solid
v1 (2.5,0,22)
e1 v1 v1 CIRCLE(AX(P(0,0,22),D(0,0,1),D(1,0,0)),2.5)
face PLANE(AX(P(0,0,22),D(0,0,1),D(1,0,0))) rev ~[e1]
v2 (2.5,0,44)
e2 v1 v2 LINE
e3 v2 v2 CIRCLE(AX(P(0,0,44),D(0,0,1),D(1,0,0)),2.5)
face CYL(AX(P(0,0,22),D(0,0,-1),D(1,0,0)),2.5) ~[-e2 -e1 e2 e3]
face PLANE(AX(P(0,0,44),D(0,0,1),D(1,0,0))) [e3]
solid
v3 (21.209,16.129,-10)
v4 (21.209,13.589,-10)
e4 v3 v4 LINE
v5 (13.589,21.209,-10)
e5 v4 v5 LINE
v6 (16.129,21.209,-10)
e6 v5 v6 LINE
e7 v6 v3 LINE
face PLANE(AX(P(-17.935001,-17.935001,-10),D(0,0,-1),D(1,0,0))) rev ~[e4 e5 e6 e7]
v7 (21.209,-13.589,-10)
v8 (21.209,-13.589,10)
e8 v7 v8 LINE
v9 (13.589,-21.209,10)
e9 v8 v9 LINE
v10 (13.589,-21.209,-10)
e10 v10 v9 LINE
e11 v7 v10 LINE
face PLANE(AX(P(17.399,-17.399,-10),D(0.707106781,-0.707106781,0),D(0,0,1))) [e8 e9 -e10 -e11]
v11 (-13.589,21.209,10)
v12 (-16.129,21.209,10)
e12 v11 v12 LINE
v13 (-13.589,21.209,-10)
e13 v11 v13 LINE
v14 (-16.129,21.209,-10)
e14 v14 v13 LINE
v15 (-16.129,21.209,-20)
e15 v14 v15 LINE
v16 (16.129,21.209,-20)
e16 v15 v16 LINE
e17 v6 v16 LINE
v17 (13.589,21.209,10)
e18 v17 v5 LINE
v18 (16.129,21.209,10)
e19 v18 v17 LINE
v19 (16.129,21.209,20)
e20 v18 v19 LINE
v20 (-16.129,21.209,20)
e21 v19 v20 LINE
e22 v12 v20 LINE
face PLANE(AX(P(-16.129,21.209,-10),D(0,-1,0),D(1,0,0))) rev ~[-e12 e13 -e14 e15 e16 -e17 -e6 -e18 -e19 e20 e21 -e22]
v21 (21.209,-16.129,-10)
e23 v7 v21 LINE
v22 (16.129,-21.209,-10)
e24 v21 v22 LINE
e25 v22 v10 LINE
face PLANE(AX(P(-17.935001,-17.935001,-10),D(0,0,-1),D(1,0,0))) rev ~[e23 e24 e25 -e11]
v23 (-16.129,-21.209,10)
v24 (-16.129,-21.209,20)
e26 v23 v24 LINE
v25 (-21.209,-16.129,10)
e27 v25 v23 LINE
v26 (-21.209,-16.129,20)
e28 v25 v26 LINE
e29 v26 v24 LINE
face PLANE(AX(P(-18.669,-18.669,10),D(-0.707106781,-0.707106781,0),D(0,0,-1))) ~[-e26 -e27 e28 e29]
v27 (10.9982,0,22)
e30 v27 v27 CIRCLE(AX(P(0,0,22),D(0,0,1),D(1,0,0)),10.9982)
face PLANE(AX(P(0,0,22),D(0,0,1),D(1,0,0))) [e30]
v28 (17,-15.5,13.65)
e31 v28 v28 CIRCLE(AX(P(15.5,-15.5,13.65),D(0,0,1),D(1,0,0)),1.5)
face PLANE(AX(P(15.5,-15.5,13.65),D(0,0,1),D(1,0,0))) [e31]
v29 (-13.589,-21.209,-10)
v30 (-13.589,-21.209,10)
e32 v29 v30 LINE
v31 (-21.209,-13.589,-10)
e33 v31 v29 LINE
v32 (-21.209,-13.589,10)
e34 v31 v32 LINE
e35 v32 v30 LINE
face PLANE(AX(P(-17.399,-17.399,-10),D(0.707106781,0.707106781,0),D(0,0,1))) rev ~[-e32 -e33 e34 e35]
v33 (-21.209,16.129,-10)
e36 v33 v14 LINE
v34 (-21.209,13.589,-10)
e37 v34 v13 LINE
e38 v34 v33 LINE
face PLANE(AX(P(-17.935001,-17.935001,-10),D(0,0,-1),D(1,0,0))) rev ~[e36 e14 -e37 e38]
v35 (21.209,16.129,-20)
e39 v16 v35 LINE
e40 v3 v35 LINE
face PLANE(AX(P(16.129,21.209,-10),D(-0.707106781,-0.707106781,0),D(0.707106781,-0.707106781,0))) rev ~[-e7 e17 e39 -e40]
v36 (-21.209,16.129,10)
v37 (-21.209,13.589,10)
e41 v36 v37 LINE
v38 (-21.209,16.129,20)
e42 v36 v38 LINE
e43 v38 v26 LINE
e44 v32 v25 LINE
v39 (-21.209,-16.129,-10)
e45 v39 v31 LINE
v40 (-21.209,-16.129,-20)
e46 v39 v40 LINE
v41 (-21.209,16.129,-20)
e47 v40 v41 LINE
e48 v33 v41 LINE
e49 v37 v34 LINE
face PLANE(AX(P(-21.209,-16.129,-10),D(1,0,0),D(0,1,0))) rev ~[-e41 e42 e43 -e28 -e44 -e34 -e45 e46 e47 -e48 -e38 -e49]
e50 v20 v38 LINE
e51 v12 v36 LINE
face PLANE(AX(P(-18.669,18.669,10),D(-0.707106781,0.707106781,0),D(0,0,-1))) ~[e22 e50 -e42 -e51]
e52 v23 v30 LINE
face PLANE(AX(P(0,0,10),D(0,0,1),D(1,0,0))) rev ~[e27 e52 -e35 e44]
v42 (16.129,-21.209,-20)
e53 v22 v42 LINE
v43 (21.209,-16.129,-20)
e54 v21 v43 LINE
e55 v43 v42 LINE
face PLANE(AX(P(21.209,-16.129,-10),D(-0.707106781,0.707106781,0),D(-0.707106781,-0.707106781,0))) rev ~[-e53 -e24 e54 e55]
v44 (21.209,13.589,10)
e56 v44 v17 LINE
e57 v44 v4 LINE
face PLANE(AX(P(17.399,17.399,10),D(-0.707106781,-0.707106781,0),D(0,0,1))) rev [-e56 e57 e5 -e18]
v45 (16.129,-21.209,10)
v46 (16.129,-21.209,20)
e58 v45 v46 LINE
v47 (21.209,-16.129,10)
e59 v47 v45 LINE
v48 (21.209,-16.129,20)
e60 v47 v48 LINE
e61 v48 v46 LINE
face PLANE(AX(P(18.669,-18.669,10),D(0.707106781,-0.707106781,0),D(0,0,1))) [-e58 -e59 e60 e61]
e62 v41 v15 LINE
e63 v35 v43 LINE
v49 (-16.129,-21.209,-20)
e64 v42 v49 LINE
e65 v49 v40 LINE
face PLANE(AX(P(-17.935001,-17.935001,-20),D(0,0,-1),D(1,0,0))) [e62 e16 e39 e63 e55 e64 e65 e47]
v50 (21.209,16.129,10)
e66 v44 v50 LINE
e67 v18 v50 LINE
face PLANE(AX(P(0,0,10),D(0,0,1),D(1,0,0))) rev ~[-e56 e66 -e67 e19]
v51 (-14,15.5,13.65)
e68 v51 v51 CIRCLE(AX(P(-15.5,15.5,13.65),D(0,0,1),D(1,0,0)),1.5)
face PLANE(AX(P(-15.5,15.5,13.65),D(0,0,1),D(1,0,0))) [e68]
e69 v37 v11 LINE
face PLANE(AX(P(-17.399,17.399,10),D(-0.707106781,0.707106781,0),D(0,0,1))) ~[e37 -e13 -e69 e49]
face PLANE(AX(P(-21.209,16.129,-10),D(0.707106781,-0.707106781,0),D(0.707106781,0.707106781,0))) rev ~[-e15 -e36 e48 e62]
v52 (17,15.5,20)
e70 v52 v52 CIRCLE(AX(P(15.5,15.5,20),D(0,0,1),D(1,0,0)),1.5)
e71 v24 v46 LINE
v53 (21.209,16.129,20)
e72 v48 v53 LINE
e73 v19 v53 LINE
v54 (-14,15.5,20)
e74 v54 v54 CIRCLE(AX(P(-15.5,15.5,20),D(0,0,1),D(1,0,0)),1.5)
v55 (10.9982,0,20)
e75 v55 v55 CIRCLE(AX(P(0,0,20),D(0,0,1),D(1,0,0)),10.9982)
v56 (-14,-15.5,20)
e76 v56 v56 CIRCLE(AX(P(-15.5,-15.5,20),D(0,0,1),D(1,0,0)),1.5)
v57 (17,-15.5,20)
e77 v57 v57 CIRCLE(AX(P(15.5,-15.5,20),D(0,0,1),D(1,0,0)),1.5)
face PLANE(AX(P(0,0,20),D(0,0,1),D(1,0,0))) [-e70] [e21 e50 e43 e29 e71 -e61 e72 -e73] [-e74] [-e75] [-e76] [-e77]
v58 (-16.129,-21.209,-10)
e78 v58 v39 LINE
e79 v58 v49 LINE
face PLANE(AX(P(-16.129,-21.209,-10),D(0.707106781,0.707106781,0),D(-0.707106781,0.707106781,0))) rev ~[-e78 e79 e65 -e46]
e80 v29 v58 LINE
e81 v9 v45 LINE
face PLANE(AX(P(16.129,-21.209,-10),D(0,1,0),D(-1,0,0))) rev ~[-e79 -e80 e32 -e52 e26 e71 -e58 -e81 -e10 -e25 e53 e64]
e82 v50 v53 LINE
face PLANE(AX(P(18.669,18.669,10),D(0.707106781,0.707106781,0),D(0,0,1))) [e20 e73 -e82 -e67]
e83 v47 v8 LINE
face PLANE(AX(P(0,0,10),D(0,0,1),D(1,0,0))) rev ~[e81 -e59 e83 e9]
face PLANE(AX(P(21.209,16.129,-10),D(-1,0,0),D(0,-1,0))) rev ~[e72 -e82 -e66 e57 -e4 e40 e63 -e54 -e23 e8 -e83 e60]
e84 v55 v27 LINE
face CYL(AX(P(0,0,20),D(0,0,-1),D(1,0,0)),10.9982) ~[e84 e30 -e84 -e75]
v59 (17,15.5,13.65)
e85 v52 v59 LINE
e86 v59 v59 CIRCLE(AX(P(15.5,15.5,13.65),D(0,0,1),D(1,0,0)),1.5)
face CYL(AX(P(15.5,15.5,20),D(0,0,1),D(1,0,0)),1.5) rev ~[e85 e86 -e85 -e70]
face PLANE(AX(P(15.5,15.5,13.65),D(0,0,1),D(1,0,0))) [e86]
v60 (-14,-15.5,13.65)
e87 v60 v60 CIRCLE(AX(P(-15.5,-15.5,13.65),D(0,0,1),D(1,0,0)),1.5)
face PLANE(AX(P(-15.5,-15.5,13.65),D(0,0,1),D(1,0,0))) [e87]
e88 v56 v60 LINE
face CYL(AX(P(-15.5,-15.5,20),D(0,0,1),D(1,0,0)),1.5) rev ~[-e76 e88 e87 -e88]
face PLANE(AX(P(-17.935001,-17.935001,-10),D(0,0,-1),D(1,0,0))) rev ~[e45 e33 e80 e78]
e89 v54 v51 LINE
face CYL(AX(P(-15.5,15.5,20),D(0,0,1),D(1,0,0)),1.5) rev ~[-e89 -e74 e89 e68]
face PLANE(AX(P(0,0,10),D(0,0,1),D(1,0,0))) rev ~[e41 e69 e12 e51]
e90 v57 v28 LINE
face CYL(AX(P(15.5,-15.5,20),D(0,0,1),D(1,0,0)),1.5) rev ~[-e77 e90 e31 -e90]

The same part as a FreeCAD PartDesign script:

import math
import FreeCAD as App
import Part
import Sketcher

V = App.Vector
Q = App.Units.Quantity


def edges_at(feature, points):
    """Names of the edges that pass closest to the given points."""
    edges = feature.Shape.Edges
    near = lambda p: min(range(len(edges)), key=lambda i: edges[i].distToShape(Part.Vertex(*p))[0])
    return sorted({f"Edge{near(p) + 1}" for p in points})


def add_polygon(sketch, points):
    """Adds a closed chain of lines whose ends are joined by coincident constraints."""
    first, n = sketch.GeometryCount, len(points)
    for a, b in zip(points, points[1:] + points[:1]):
        sketch.addGeometry(Part.LineSegment(App.Vector(*a, 0), App.Vector(*b, 0)), False)
    for i in range(n):
        sketch.addConstraint(Sketcher.Constraint("Coincident", first + i, 2, first + (i + 1) % n, 1))

doc = App.newDocument("Part")
params = doc.addObject("Spreadsheet::Sheet", "Params")
for row, (alias, value) in enumerate([
    ("pad1_length", "20 mm"),
    ("chamfer_size", "7.62 mm"),
    ("pad2_length", "10 mm"),
    ("chamfer2_size", "5.08 mm"),
    ("pad3_length", "10 mm"),
    ("pad4_length", "2 mm"),
    ("sketch5_radius", "2.5 mm"),
    ("pocket1_length", "15 mm"),
    ("sketch6_diameter", "3 mm"),
    ("pocket2_length", "6.35 mm"),
    ("sketch7_diameter", "5 mm"),
    ("pad5_length", "22 mm"),
], start=1):
    params.set(f"A{row}", alias)
    params.set(f"B{row}", "=" + value)
    params.setAlias(f"B{row}", alias)

body = doc.addObject("PartDesign::Body", "Body")

# Sketch on XY plane
sketch1 = doc.addObject("Sketcher::SketchObject", "Sketch")
body.addObject(sketch1)
sketch1.AttachmentSupport = (doc.XY_Plane, [""])
sketch1.MapMode = "FlatFace"
add_polygon(sketch1, [(-21, 21), (-21, -21), (21, -21), (21, 21)])  # lines 0-3
sketch1.addConstraint(Sketcher.Constraint("Vertical", 0))
sketch1.addConstraint(Sketcher.Constraint("Horizontal", 1))
sketch1.addConstraint(Sketcher.Constraint("Vertical", 2))
sketch1.addConstraint(Sketcher.Constraint("Horizontal", 3))
sketch1.addConstraint(Sketcher.Constraint("Symmetric", 0, 2, 2, 2, -1, 1))
sketch1.addConstraint(Sketcher.Constraint("Equal", 3, 0))
sketch1.addConstraint(Sketcher.Constraint("DistanceX", 1, 1, 1, 2, Q("42.418 mm")))
pad1 = doc.addObject("PartDesign::Pad", "Pad")
body.addObject(pad1)
pad1.Profile = sketch1
pad1.setExpression("Length", "Params.pad1_length")
pad1.Midplane = True
doc.recompute()

chamfer = doc.addObject("PartDesign::Chamfer", "Chamfer")
body.addObject(chamfer)
chamfer.Base = (pad1, edges_at(pad1, [
    (21.209, 21.209, 0),
    (-21.209, 21.209, 0),
    (-21.209, -21.209, 0),
    (21.209, -21.209, 0),
]))
chamfer.setExpression("Size", "Params.chamfer_size")

# Sketch on XY plane
sketch2 = doc.addObject("Sketcher::SketchObject", "Sketch001")
body.addObject(sketch2)
sketch2.AttachmentSupport = (doc.XY_Plane, [""])
sketch2.MapMode = "FlatFace"
sketch2.AttachmentOffset = App.Placement(V(0, 0, 10), App.Rotation())
add_polygon(sketch2, [(21, 21), (-21, 21), (-21, -21), (21, -21)])  # lines 0-3
sketch2.addConstraint(Sketcher.Constraint("Horizontal", 0))
sketch2.addConstraint(Sketcher.Constraint("Vertical", 1))
sketch2.addConstraint(Sketcher.Constraint("Horizontal", 2))
sketch2.addConstraint(Sketcher.Constraint("Vertical", 3))
sketch2.addConstraint(Sketcher.Constraint("Symmetric", 0, 2, 2, 2, -1, 1))
sketch2.addConstraint(Sketcher.Constraint("Equal", 2, 1))
sketch2.addConstraint(Sketcher.Constraint("DistanceX", 0, 2, 0, 1, Q("42.418 mm")))
pad2 = doc.addObject("PartDesign::Pad", "Pad001")
body.addObject(pad2)
pad2.Profile = sketch2
pad2.setExpression("Length", "Params.pad2_length")
doc.recompute()

chamfer2 = doc.addObject("PartDesign::Chamfer", "Chamfer001")
body.addObject(chamfer2)
chamfer2.Base = (pad2, edges_at(pad2, [
    (21.209, 21.209, 15),
    (-21.209, 21.209, 15),
    (-21.209, -21.209, 15),
    (21.209, -21.209, 15),
]))
chamfer2.setExpression("Size", "Params.chamfer2_size")

# Sketch on XY plane
sketch3 = doc.addObject("Sketcher::SketchObject", "Sketch002")
body.addObject(sketch3)
sketch3.AttachmentSupport = (doc.XY_Plane, [""])
sketch3.MapMode = "FlatFace"
sketch3.AttachmentOffset = App.Placement(V(0, 0, -10), App.Rotation())
add_polygon(sketch3, [(-16, -21), (-21, -16), (-21, 16), (-16, 21), (16, 21), (21, 16), (21, -16), (16, -21)])  # lines 0-7
sketch3.addConstraint(Sketcher.Constraint("Vertical", 1))
sketch3.addConstraint(Sketcher.Constraint("Horizontal", 3))
sketch3.addConstraint(Sketcher.Constraint("Vertical", 5))
sketch3.addConstraint(Sketcher.Constraint("Horizontal", 7))
sketch3.addConstraint(Sketcher.Constraint("Symmetric", 0, 2, 4, 2, -1, 1))
sketch3.addConstraint(Sketcher.Constraint("Symmetric", 2, 2, 6, 2, -1, 1))
sketch3.addConstraint(Sketcher.Constraint("Perpendicular", 0, 2))
sketch3.addConstraint(Sketcher.Constraint("Perpendicular", 2, 4))
sketch3.addConstraint(Sketcher.Constraint("Perpendicular", 4, 6))
sketch3.addConstraint(Sketcher.Constraint("Horizontal", 1, 2, 4, 2))
sketch3.addConstraint(Sketcher.Constraint("Vertical", 3, 2, 6, 2))
sketch3.addConstraint(Sketcher.Constraint("Equal", 7, 1))
sketch3.addConstraint(Sketcher.Constraint("DistanceX", 3, 1, 3, 2, Q("32.258 mm")))
sketch3.addConstraint(Sketcher.Constraint("DistanceX", 1, 2, 2, 2, Q("5.08 mm")))
pad3 = doc.addObject("PartDesign::Pad", "Pad002")
body.addObject(pad3)
pad3.Profile = sketch3
pad3.setExpression("Length", "Params.pad3_length")
pad3.Reversed = True

# Sketch on XY plane
sketch4 = doc.addObject("Sketcher::SketchObject", "Sketch003")
body.addObject(sketch4)
sketch4.AttachmentSupport = (doc.XY_Plane, [""])
sketch4.MapMode = "FlatFace"
sketch4.AttachmentOffset = App.Placement(V(0, 0, 20), App.Rotation())
sketch4.addGeometry(Part.Circle(V(0, 0, 0), V(0, 0, 1), 11), False)
sketch4.addConstraint(Sketcher.Constraint("Coincident", 0, 3, -1, 1))
sketch4.addConstraint(Sketcher.Constraint("Diameter", 0, Q("21.9964 mm")))
pad4 = doc.addObject("PartDesign::Pad", "Pad003")
body.addObject(pad4)
pad4.Profile = sketch4
pad4.setExpression("Length", "Params.pad4_length")

# Sketch on XY plane
sketch5 = doc.addObject("Sketcher::SketchObject", "Sketch004")
body.addObject(sketch5)
sketch5.AttachmentSupport = (doc.XY_Plane, [""])
sketch5.MapMode = "FlatFace"
sketch5.AttachmentOffset = App.Placement(V(0, 0, 44), App.Rotation())
sketch5.addGeometry(Part.LineSegment(V(2.6, 2.9, 0), V(-2.6, 2.9, 0)), False)
sketch5.addGeometry(Part.LineSegment(V(-2.6, 2.9, 0), V(-2.6, 2, 0)), False)
sketch5.addGeometry(Part.LineSegment(V(-2.6, 2, 0), V(-1.5, 2, 0)), False)
sketch5.addGeometry(Part.ArcOfCircle(Part.Circle(V(0, 0, 0), V(0, 0, 1), 2.5), math.radians(53), math.radians(127)), False)
sketch5.addGeometry(Part.LineSegment(V(1.5, 2, 0), V(2.6, 2, 0)), False)
sketch5.addGeometry(Part.LineSegment(V(2.6, 2, 0), V(2.6, 2.9, 0)), False)
sketch5.addConstraint(Sketcher.Constraint("Coincident", 0, 2, 1, 1))
sketch5.addConstraint(Sketcher.Constraint("Coincident", 1, 2, 2, 1))
sketch5.addConstraint(Sketcher.Constraint("Coincident", 2, 2, 3, 2))
sketch5.addConstraint(Sketcher.Constraint("Coincident", 3, 1, 4, 1))
sketch5.addConstraint(Sketcher.Constraint("Coincident", 4, 2, 5, 1))
sketch5.addConstraint(Sketcher.Constraint("Coincident", 5, 2, 0, 1))
sketch5.addConstraint(Sketcher.Constraint("Horizontal", 0))
sketch5.addConstraint(Sketcher.Constraint("Vertical", 1))
sketch5.addConstraint(Sketcher.Constraint("Horizontal", 2))
sketch5.addConstraint(Sketcher.Constraint("Horizontal", 4))
sketch5.addConstraint(Sketcher.Constraint("Vertical", 5))
sketch5.addConstraint(Sketcher.Constraint("Coincident", 3, 3, -1, 1))
sketch5.addConstraint(Sketcher.Constraint("Horizontal", 2, 2, 3, 1))
sketch5.addConstraint(Sketcher.Constraint("Radius", 3, Q("2.5 mm")))
sketch5.addConstraint(Sketcher.Constraint("DistanceY", -1, 1, 1, 2, Q("2 mm")))
sketch5.addConstraint(Sketcher.Constraint("DistanceX", 0, 2, 0, 1, Q("5.253729 mm")))
sketch5.addConstraint(Sketcher.Constraint("DistanceX", 2, 1, 2, 2, Q("1.133366 mm")))
sketch5.addConstraint(Sketcher.Constraint("DistanceY", 1, 2, 1, 1, Q("0.933404 mm")))
sketch5.setExpression("Constraints[13]", "Params.sketch5_radius")
pocket1 = doc.addObject("PartDesign::Pocket", "Pocket")
body.addObject(pocket1)
pocket1.Profile = sketch5
pocket1.setExpression("Length", "Params.pocket1_length")

# Sketch on XY plane
sketch6 = doc.addObject("Sketcher::SketchObject", "Sketch005")
body.addObject(sketch6)
sketch6.AttachmentSupport = (doc.XY_Plane, [""])
sketch6.MapMode = "FlatFace"
sketch6.AttachmentOffset = App.Placement(V(0, 0, 20), App.Rotation())
sketch6.addGeometry(Part.Circle(V(-15.5, 15.5, 0), V(0, 0, 1), 1.5), False)
sketch6.addGeometry(Part.Circle(V(15.5, 15.5, 0), V(0, 0, 1), 1.5), False)
sketch6.addGeometry(Part.Circle(V(15.5, -15.5, 0), V(0, 0, 1), 1.5), False)
sketch6.addGeometry(Part.Circle(V(-15.5, -15.5, 0), V(0, 0, 1), 1.5), False)
sketch6.addConstraint(Sketcher.Constraint("Equal", 0, 1))
sketch6.addConstraint(Sketcher.Constraint("Equal", 1, 2))
sketch6.addConstraint(Sketcher.Constraint("Equal", 2, 3))
sketch6.addConstraint(Sketcher.Constraint("Symmetric", 0, 3, 2, 3, -1, 1))
sketch6.addConstraint(Sketcher.Constraint("Symmetric", 1, 3, 3, 3, -1, 1))
sketch6.addConstraint(Sketcher.Constraint("Symmetric", 0, 3, 1, 3, -2))
sketch6.addConstraint(Sketcher.Constraint("Diameter", 0, Q("3 mm")))
sketch6.addConstraint(Sketcher.Constraint("DistanceX", 0, 3, 1, 3, Q("31 mm")))
sketch6.addConstraint(Sketcher.Constraint("DistanceY", 2, 3, 1, 3, Q("31 mm")))
sketch6.setExpression("Constraints[6]", "Params.sketch6_diameter")
pocket2 = doc.addObject("PartDesign::Pocket", "Pocket001")
body.addObject(pocket2)
pocket2.Profile = sketch6
pocket2.setExpression("Length", "Params.pocket2_length")
body2 = doc.addObject("PartDesign::Body", "Body001")

# Sketch on XY plane
sketch7 = doc.addObject("Sketcher::SketchObject", "Sketch006")
body2.addObject(sketch7)
sketch7.AttachmentSupport = (doc.getObject("XY_Plane001"), [""])
sketch7.MapMode = "FlatFace"
sketch7.AttachmentOffset = App.Placement(V(0, 0, 22), App.Rotation())
sketch7.addGeometry(Part.Circle(V(0, 0, 0), V(0, 0, 1), 2.5), False)
sketch7.addConstraint(Sketcher.Constraint("Coincident", 0, 3, -1, 1))
sketch7.addConstraint(Sketcher.Constraint("Diameter", 0, Q("5 mm")))
sketch7.setExpression("Constraints[1]", "Params.sketch7_diameter")
pad5 = doc.addObject("PartDesign::Pad", "Pad004")
body2.addObject(pad5)
pad5.Profile = sketch7
pad5.setExpression("Length", "Params.pad5_length")

doc.recompute()
